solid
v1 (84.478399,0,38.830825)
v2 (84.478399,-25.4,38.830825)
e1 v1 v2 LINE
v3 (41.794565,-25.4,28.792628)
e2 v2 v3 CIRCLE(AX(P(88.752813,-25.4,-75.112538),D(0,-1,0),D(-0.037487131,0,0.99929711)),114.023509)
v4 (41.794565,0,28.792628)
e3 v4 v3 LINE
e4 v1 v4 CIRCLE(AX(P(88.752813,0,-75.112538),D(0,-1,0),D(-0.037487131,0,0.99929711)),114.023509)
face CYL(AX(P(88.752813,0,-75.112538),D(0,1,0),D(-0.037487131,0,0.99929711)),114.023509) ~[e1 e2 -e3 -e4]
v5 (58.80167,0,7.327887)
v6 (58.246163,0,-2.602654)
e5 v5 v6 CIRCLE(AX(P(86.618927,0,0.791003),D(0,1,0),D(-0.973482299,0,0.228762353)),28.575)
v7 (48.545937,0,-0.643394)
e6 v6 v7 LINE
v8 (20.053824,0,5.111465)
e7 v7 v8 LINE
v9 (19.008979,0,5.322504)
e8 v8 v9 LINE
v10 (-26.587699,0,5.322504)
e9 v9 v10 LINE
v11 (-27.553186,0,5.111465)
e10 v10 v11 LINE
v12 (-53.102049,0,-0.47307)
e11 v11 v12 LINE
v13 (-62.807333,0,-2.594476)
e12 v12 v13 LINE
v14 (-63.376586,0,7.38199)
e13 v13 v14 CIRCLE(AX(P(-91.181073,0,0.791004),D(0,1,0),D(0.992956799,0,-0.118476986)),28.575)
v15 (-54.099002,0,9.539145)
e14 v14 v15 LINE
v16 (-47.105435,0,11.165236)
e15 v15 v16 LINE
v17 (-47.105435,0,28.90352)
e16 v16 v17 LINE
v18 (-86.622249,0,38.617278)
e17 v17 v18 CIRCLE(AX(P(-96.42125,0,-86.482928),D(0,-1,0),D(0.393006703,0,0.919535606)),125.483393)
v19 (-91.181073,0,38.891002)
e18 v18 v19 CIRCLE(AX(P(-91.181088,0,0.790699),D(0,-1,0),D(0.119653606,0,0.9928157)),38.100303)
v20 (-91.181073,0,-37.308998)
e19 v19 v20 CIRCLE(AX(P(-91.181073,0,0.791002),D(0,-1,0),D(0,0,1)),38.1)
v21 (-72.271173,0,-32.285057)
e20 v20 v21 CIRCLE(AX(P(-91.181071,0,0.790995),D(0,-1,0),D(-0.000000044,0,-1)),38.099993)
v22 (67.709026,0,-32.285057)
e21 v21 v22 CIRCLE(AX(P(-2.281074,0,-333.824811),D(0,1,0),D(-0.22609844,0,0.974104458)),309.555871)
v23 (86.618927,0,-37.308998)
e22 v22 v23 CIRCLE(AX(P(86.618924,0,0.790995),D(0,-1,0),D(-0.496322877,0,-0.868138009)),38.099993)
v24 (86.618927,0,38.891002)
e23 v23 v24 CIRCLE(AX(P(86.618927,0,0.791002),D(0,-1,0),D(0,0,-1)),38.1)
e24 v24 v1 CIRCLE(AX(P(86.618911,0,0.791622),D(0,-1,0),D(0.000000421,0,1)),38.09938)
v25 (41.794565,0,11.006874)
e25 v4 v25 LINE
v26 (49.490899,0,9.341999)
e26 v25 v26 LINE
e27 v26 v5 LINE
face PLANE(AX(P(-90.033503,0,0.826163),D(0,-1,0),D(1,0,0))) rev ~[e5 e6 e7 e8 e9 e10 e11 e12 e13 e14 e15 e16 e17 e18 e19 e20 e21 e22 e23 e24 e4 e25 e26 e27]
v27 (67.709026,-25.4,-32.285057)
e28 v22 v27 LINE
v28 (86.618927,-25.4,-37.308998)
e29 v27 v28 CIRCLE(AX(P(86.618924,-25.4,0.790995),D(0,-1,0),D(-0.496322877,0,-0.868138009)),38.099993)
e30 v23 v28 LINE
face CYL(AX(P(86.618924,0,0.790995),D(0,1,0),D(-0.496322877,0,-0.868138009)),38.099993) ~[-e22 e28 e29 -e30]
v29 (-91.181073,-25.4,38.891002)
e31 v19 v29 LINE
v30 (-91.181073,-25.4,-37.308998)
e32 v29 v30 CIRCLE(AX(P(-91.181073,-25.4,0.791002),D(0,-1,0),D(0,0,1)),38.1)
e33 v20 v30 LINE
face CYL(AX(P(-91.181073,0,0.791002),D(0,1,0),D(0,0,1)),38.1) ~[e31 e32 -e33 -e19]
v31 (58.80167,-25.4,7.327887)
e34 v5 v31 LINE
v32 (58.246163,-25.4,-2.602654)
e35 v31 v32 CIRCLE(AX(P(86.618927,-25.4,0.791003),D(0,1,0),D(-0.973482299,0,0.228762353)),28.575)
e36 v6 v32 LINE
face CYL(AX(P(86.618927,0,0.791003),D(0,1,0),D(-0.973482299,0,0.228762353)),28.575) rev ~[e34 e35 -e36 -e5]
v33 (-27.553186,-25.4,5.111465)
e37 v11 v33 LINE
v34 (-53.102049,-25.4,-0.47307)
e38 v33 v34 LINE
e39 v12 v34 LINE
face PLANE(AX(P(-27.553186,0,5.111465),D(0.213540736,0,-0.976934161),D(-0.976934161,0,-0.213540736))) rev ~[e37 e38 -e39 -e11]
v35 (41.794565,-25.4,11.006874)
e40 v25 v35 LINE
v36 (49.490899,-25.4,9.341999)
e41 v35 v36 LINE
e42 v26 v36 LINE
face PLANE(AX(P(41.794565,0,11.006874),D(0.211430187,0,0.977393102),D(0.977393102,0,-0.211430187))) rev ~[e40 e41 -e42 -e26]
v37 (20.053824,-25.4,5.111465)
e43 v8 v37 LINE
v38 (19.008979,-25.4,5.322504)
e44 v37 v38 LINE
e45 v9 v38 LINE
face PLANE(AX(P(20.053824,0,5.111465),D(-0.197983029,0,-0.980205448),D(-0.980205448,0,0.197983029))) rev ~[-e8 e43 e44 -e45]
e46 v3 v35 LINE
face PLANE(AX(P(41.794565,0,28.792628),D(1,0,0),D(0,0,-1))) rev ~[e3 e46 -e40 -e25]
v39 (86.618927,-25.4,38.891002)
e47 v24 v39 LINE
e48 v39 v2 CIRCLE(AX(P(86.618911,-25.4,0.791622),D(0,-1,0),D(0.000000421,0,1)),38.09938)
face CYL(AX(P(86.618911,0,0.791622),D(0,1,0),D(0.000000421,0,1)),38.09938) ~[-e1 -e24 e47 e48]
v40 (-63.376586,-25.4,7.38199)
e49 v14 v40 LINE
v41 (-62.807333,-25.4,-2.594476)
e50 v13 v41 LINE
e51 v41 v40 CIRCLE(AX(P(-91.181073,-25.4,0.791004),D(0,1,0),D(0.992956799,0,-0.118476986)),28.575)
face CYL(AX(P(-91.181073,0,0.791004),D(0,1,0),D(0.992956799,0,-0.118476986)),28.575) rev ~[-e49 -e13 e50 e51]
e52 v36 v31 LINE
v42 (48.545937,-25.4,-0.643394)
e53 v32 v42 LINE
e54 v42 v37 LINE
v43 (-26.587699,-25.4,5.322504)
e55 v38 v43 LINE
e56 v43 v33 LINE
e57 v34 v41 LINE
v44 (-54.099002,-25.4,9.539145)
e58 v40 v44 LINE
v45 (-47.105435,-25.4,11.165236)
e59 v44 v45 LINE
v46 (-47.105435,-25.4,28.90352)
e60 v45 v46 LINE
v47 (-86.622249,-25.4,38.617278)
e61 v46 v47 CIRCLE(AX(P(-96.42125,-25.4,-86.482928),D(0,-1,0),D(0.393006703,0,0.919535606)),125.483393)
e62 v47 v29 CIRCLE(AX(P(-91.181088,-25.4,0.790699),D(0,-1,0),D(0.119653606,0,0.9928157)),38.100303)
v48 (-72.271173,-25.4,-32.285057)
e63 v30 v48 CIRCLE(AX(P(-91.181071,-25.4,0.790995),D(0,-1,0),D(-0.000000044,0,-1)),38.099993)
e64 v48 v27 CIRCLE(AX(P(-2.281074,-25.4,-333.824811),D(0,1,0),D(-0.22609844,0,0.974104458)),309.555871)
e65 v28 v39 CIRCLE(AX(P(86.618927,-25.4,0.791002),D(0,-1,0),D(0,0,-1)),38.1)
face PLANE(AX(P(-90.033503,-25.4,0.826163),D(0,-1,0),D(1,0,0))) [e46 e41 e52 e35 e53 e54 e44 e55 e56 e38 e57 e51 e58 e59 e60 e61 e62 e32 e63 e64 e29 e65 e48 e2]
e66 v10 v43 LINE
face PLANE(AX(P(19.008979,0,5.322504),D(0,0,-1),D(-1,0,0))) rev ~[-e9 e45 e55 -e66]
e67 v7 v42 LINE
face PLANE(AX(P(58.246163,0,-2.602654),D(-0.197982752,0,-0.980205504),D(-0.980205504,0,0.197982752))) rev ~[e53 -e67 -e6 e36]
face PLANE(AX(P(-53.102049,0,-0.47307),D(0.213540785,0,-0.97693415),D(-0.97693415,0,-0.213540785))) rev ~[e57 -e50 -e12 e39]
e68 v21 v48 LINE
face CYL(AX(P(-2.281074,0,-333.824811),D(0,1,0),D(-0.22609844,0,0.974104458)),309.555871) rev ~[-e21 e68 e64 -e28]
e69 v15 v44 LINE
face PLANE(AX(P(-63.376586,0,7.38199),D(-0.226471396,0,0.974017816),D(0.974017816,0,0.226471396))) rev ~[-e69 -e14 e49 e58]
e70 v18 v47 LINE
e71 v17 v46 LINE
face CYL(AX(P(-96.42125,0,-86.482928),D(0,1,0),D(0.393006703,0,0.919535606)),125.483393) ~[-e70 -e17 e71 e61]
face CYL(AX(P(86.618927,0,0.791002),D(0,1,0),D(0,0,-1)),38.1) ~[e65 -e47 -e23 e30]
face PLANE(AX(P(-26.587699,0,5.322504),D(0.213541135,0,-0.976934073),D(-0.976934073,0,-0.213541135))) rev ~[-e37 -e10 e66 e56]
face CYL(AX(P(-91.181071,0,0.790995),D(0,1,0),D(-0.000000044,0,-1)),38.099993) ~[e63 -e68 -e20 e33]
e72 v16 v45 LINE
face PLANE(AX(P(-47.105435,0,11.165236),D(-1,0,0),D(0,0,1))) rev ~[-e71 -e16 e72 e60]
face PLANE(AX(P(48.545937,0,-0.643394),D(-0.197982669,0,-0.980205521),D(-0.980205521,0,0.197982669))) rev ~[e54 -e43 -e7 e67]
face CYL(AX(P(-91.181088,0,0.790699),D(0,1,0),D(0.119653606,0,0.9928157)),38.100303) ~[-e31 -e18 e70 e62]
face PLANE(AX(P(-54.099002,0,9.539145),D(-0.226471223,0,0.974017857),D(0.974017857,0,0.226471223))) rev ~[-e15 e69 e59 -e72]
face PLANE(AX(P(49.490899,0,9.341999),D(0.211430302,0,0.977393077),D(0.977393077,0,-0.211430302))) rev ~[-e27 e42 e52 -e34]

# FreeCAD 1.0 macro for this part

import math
import FreeCAD as App
import Part
import Sketcher
Q = App.Units.Quantity

doc = App.newDocument("Part")
body = doc.addObject("PartDesign::Body", "Body")

# Sketch on XZ plane
sketch1 = doc.addObject("Sketcher::SketchObject", "Sketch")
body.addObject(sketch1)
sketch1.AttachmentSupport = (doc.XZ_Plane, [""])
sketch1.MapMode = "FlatFace"
sketch1.addGeometry(Part.ArcOfCircle(Part.Circle(App.Vector(-91.181073, 0.791002, 0), App.Vector(0, 0, 1), 38.1), math.radians(90), math.radians(270)), False)
sketch1.addGeometry(Part.ArcOfCircle(Part.Circle(App.Vector(-91.181071, 0.790995, 0), App.Vector(0, 0, 1), 38.099993), math.radians(-90.000003), math.radians(-60.24298)), False)
sketch1.addGeometry(Part.ArcOfCircle(Part.Circle(App.Vector(-2.281074, -333.824811, 0), App.Vector(0, 0, 1), 309.555871), math.radians(76.932521), math.radians(103.067479)), False)
sketch1.addGeometry(Part.ArcOfCircle(Part.Circle(App.Vector(86.618924, 0.790995, 0), App.Vector(0, 0, 1), 38.099993), math.radians(-119.75702), math.radians(-89.999996)), False)
sketch1.addGeometry(Part.ArcOfCircle(Part.Circle(App.Vector(86.618927, 0.791002, 0), App.Vector(0, 0, 1), 38.1), math.radians(-90), math.radians(90)), False)
sketch1.addGeometry(Part.ArcOfCircle(Part.Circle(App.Vector(86.618911, 0.791622, 0), App.Vector(0, 0, 1), 38.09938), math.radians(89.999976), math.radians(93.220706)), False)
sketch1.addGeometry(Part.ArcOfCircle(Part.Circle(App.Vector(88.752813, -75.112538, 0), App.Vector(0, 0, 1), 114.023509), math.radians(92.148358), math.radians(114.319815)), False)
sketch1.addGeometry(Part.LineSegment(App.Vector(41.794565, 28.792628, 0), App.Vector(41.794565, 11.006874, 0)), False)
sketch1.addGeometry(Part.LineSegment(App.Vector(41.794565, 11.006874, 0), App.Vector(49.490899, 9.341999, 0)), False)
sketch1.addGeometry(Part.LineSegment(App.Vector(49.490899, 9.341999, 0), App.Vector(58.80167, 7.327887, 0)), False)
sketch1.addGeometry(Part.ArcOfCircle(Part.Circle(App.Vector(86.618927, 0.791003, 0), App.Vector(0, 0, 1), 28.575), math.radians(-173.179275), math.radians(166.775783)), False)
sketch1.addGeometry(Part.LineSegment(App.Vector(58.246163, -2.602654, 0), App.Vector(48.545937, -0.643394, 0)), False)
sketch1.addGeometry(Part.LineSegment(App.Vector(48.545937, -0.643394, 0), App.Vector(20.053824, 5.111465, 0)), False)
sketch1.addGeometry(Part.LineSegment(App.Vector(20.053824, 5.111465, 0), App.Vector(19.008979, 5.322504, 0)), False)
sketch1.addGeometry(Part.LineSegment(App.Vector(19.008979, 5.322504, 0), App.Vector(-26.587699, 5.322504, 0)), False)
sketch1.addGeometry(Part.LineSegment(App.Vector(-26.587699, 5.322504, 0), App.Vector(-27.553186, 5.111465, 0)), False)
sketch1.addGeometry(Part.LineSegment(App.Vector(-27.553186, 5.111465, 0), App.Vector(-53.102049, -0.47307, 0)), False)
sketch1.addGeometry(Part.LineSegment(App.Vector(-53.102049, -0.47307, 0), App.Vector(-62.807333, -2.594476, 0)), False)
sketch1.addGeometry(Part.ArcOfCircle(Part.Circle(App.Vector(-91.181073, 0.791004, 0), App.Vector(0, 0, 1), 28.575), math.radians(13.335678), math.radians(353.195787)), False)
sketch1.addGeometry(Part.LineSegment(App.Vector(-63.376586, 7.38199, 0), App.Vector(-54.099002, 9.539145, 0)), False)
sketch1.addGeometry(Part.LineSegment(App.Vector(-54.099002, 9.539145, 0), App.Vector(-47.105435, 11.165236, 0)), False)
sketch1.addGeometry(Part.LineSegment(App.Vector(-47.105435, 11.165236, 0), App.Vector(-47.105435, 28.90352, 0)), False)
sketch1.addGeometry(Part.ArcOfCircle(Part.Circle(App.Vector(-96.42125, -86.482928, 0), App.Vector(0, 0, 1), 125.483393), math.radians(66.858285), math.radians(85.521212)), False)
sketch1.addGeometry(Part.ArcOfCircle(Part.Circle(App.Vector(-91.181088, 0.790699, 0), App.Vector(0, 0, 1), 38.100303), math.radians(83.127888), math.radians(89.999978)), False)
sketch1.addConstraint(Sketcher.Constraint("Coincident", 0, 2, 1, 1))
sketch1.addConstraint(Sketcher.Constraint("Coincident", 1, 2, 2, 2))
sketch1.addConstraint(Sketcher.Constraint("Coincident", 2, 1, 3, 1))
sketch1.addConstraint(Sketcher.Constraint("Coincident", 3, 2, 4, 1))
sketch1.addConstraint(Sketcher.Constraint("Coincident", 4, 2, 5, 1))
sketch1.addConstraint(Sketcher.Constraint("Coincident", 5, 2, 6, 1))
sketch1.addConstraint(Sketcher.Constraint("Coincident", 6, 2, 7, 1))
sketch1.addConstraint(Sketcher.Constraint("Coincident", 7, 2, 8, 1))
sketch1.addConstraint(Sketcher.Constraint("Coincident", 8, 2, 9, 1))
sketch1.addConstraint(Sketcher.Constraint("Coincident", 9, 2, 10, 2))
sketch1.addConstraint(Sketcher.Constraint("Coincident", 10, 1, 11, 1))
sketch1.addConstraint(Sketcher.Constraint("Coincident", 11, 2, 12, 1))
sketch1.addConstraint(Sketcher.Constraint("Coincident", 12, 2, 13, 1))
sketch1.addConstraint(Sketcher.Constraint("Coincident", 13, 2, 14, 1))
sketch1.addConstraint(Sketcher.Constraint("Coincident", 14, 2, 15, 1))
sketch1.addConstraint(Sketcher.Constraint("Coincident", 15, 2, 16, 1))
sketch1.addConstraint(Sketcher.Constraint("Coincident", 16, 2, 17, 1))
sketch1.addConstraint(Sketcher.Constraint("Coincident", 17, 2, 18, 2))
sketch1.addConstraint(Sketcher.Constraint("Coincident", 18, 1, 19, 1))
sketch1.addConstraint(Sketcher.Constraint("Coincident", 19, 2, 20, 1))
sketch1.addConstraint(Sketcher.Constraint("Coincident", 20, 2, 21, 1))
sketch1.addConstraint(Sketcher.Constraint("Coincident", 21, 2, 22, 1))
sketch1.addConstraint(Sketcher.Constraint("Coincident", 22, 2, 23, 1))
sketch1.addConstraint(Sketcher.Constraint("Coincident", 23, 2, 0, 1))
sketch1.addConstraint(Sketcher.Constraint("Vertical", 7))
sketch1.addConstraint(Sketcher.Constraint("Horizontal", 14))
sketch1.addConstraint(Sketcher.Constraint("Vertical", 21))
sketch1.addConstraint(Sketcher.Constraint("Coincident", 1, 3, 0, 3))
sketch1.addConstraint(Sketcher.Constraint("Coincident", 4, 3, 3, 3))
sketch1.addConstraint(Sketcher.Constraint("Coincident", 10, 3, 3, 3))
sketch1.addConstraint(Sketcher.Constraint("Coincident", 18, 3, 0, 3))
sketch1.addConstraint(Sketcher.Constraint("Radius", 0, Q("1.5 in")))
sketch1.addConstraint(Sketcher.Constraint("Radius", 4, Q("1.5 in")))
sketch1.addConstraint(Sketcher.Constraint("Radius", 10, Q("1.125 in")))
sketch1.addConstraint(Sketcher.Constraint("Radius", 18, Q("1.125 in")))
sketch1.addConstraint(Sketcher.Constraint("DistanceX", 1, 3, 3, 3, Q("6.9999998 in")))
sketch1.addConstraint(Sketcher.Constraint("DistanceX", 23, 3, 5, 3, Q("6.9999999 in")))
sketch1.addConstraint(Sketcher.Constraint("DistanceX", 1, 3, 2, 3, Q("3.4999999 in")))
sketch1.addConstraint(Sketcher.Constraint("Radius", 2, Q("309.555871 mm")))
sketch1.addConstraint(Sketcher.Constraint("Radius", 5, Q("38.09938 mm")))
sketch1.addConstraint(Sketcher.Constraint("Radius", 6, Q("114.023509 mm")))
sketch1.addConstraint(Sketcher.Constraint("Radius", 22, Q("125.483393 mm")))
sketch1.addConstraint(Sketcher.Constraint("Radius", 23, Q("38.100303 mm")))
sketch1.addConstraint(Sketcher.Constraint("DistanceY", 3, 3, 7, 2, Q("0.4021999 in")))
sketch1.addConstraint(Sketcher.Constraint("DistanceY", -1, 1, 0, 3, Q("0.791002 mm")))
sketch1.addConstraint(Sketcher.Constraint("DistanceY", -1, 1, 4, 3, Q("0.791002 mm")))
sketch1.addConstraint(Sketcher.Constraint("DistanceX", -1, 1, 5, 2, Q("84.478399 mm")))
sketch1.addConstraint(Sketcher.Constraint("DistanceX", -1, 1, 8, 2, Q("49.490899 mm")))
sketch1.addConstraint(Sketcher.Constraint("DistanceY", -1, 1, 8, 2, Q("9.341999 mm")))
sketch1.addConstraint(Sketcher.Constraint("DistanceX", 14, 2, -1, 1, Q("26.587699 mm")))
sketch1.addConstraint(Sketcher.Constraint("DistanceX", 0, 2, 1, 2, Q("18.9099 mm")))
sketch1.addConstraint(Sketcher.Constraint("DistanceX", 1, 3, 1, 2, Q("18.909898 mm")))
sketch1.addConstraint(Sketcher.Constraint("DistanceX", 2, 1, 3, 2, Q("18.909901 mm")))
sketch1.addConstraint(Sketcher.Constraint("DistanceX", 2, 1, 4, 2, Q("18.909901 mm")))
sketch1.addConstraint(Sketcher.Constraint("Distance", 8, Q("7.874349 mm")))
sketch1.addConstraint(Sketcher.Constraint("Distance", 12, Q("29.067489 mm")))
sketch1.addConstraint(Sketcher.Constraint("Distance", 17, Q("9.93443 mm")))
sketch1.addConstraint(Sketcher.Constraint("Distance", 20, Q("7.180122 mm")))
sketch1.addConstraint(Sketcher.Constraint("DistanceX", 14, 2, 14, 1, Q("45.596678 mm")))
sketch1.addConstraint(Sketcher.Constraint("DistanceY", 7, 2, 7, 1, Q("17.785754 mm")))
sketch1.addConstraint(Sketcher.Constraint("DistanceY", 21, 1, 21, 2, Q("17.738284 mm")))
sketch1.addConstraint(Sketcher.Constraint("DistanceX", 1, 3, -1, 1, Q("91.181071 mm")))
sketch1.addConstraint(Sketcher.Constraint("DistanceX", -1, 1, 5, 3, Q("86.618911 mm")))
sketch1.addConstraint(Sketcher.Constraint("DistanceX", 22, 3, -1, 1, Q("96.42125 mm")))
sketch1.addConstraint(Sketcher.Constraint("DistanceX", -1, 1, 9, 2, Q("58.80167 mm")))
sketch1.addConstraint(Sketcher.Constraint("DistanceX", 16, 2, -1, 1, Q("53.102049 mm")))
sketch1.addConstraint(Sketcher.Constraint("DistanceY", 16, 2, -1, 1, Q("0.47307 mm")))
sketch1.addConstraint(Sketcher.Constraint("DistanceY", -1, 1, 18, 1, Q("7.38199 mm")))
sketch1.addConstraint(Sketcher.Constraint("DistanceY", -1, 1, 21, 2, Q("28.90352 mm")))
sketch1.addConstraint(Sketcher.Constraint("DistanceX", 22, 2, -1, 1, Q("86.622249 mm")))
sketch1.addConstraint(Sketcher.Constraint("DistanceY", 10, 1, 9, 2, Q("9.930541 mm")))
sketch1.addConstraint(Sketcher.Constraint("DistanceY", 10, 1, 11, 2, Q("1.95926 mm")))
sketch1.addConstraint(Sketcher.Constraint("DistanceX", 11, 2, 8, 2, Q("0.944962 mm")))
sketch1.addConstraint(Sketcher.Constraint("DistanceX", 12, 2, 7, 2, Q("21.740741 mm")))
sketch1.addConstraint(Sketcher.Constraint("DistanceY", 12, 2, 13, 2, Q("0.211039 mm")))
sketch1.addConstraint(Sketcher.Constraint("DistanceY", 15, 2, 14, 2, Q("0.211039 mm")))
sketch1.addConstraint(Sketcher.Constraint("DistanceX", 15, 2, 12, 2, Q("47.60701 mm")))
sketch1.addConstraint(Sketcher.Constraint("DistanceX", 17, 2, 19, 2, Q("8.708331 mm")))
sketch1.addConstraint(Sketcher.Constraint("DistanceX", 23, 2, -1, 1, Q("91.181073 mm")))
pad1 = doc.addObject("PartDesign::Pad", "Pad")
body.addObject(pad1)
pad1.Profile = sketch1
pad1.Length = Q("1 in")

doc.recompute()
